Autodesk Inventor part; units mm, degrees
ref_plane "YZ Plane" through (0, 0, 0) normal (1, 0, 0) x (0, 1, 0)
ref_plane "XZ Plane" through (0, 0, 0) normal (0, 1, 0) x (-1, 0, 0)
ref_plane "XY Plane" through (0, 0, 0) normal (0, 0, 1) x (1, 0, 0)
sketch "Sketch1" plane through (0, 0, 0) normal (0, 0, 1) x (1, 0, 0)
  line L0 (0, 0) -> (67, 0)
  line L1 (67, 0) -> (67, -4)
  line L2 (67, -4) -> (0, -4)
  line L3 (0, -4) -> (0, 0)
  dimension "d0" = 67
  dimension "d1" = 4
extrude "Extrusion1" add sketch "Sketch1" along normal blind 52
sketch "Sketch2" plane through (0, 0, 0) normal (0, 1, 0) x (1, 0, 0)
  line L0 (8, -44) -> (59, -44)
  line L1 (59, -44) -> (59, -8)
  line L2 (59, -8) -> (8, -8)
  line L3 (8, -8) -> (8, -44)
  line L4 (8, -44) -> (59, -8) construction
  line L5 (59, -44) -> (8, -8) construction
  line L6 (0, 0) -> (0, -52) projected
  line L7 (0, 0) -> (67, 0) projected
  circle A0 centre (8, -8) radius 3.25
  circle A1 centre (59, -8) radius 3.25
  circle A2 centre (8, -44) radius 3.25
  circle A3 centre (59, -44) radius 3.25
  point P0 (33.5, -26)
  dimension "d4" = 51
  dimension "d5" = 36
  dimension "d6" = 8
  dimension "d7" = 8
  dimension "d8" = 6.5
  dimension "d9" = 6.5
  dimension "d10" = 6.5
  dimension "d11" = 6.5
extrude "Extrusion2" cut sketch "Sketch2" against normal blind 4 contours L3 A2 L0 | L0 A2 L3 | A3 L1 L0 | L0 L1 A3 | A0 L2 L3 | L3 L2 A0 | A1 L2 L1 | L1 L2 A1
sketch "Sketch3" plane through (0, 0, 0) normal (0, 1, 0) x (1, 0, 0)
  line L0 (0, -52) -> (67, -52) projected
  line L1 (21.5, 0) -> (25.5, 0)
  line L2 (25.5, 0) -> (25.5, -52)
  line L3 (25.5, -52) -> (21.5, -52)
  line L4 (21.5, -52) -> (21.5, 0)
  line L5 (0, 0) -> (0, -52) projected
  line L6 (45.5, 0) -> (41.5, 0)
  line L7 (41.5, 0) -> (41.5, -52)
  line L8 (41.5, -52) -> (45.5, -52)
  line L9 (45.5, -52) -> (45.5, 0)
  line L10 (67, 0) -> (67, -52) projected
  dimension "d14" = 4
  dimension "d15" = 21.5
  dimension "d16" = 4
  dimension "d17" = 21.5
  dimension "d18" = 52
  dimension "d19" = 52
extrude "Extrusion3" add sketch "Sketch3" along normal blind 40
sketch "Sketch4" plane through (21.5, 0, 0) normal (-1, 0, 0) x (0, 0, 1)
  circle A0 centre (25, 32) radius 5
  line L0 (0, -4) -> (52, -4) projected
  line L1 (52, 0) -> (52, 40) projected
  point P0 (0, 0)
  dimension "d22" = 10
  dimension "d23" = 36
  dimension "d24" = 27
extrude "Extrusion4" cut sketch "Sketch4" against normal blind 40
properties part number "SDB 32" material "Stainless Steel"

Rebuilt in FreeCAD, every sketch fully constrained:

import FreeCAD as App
import Part
import Sketcher

V = App.Vector

doc = App.newDocument("Part")
body = doc.addObject("PartDesign::Body", "Body")

# Sketch on XY plane
sketch1 = body.newObject("Sketcher::SketchObject", "Sketch")
sketch1.AttachmentSupport = (doc.getObject("XY_Plane"), [""])
sketch1.MapMode = "FlatFace"
sketch1.addGeometry(Part.LineSegment(V(67, 0, 0), V(0, 0, 0)), False)
sketch1.addGeometry(Part.LineSegment(V(0, 0, 0), V(0, -4, 0)), False)
sketch1.addGeometry(Part.LineSegment(V(0, -4, 0), V(67, -4, 0)), False)
sketch1.addGeometry(Part.LineSegment(V(67, -4, 0), V(67, 0, 0)), False)
sketch1.addConstraint(Sketcher.Constraint("Coincident", 0, 2, 1, 1))
sketch1.addConstraint(Sketcher.Constraint("Coincident", 1, 2, 2, 1))
sketch1.addConstraint(Sketcher.Constraint("Coincident", 2, 2, 3, 1))
sketch1.addConstraint(Sketcher.Constraint("Coincident", 3, 2, 0, 1))
sketch1.addConstraint(Sketcher.Constraint("Horizontal", 0))
sketch1.addConstraint(Sketcher.Constraint("Vertical", 1))
sketch1.addConstraint(Sketcher.Constraint("Horizontal", 2))
sketch1.addConstraint(Sketcher.Constraint("Vertical", 3))
sketch1.addConstraint(Sketcher.Constraint("Coincident", 0, 2, -1, 1))
sketch1.addConstraint(Sketcher.Constraint("DistanceX", 0, 2, 0, 1, 67.0))
sketch1.addConstraint(Sketcher.Constraint("DistanceY", 1, 2, 1, 1, 4.0))
pad1 = body.newObject("PartDesign::Pad", "Pad")
pad1.Profile = sketch1
pad1.Length = 52

# Sketch on XZ plane
sketch2 = body.newObject("Sketcher::SketchObject", "Sketch001")
sketch2.AttachmentSupport = (doc.getObject("XZ_Plane"), [""])
sketch2.MapMode = "FlatFace"
sketch2.addGeometry(Part.Circle(V(8, 44, 0), V(0, 0, 1), 3.2), False)
sketch2.addGeometry(Part.Circle(V(59, 44, 0), V(0, 0, 1), 3.2), False)
sketch2.addGeometry(Part.Circle(V(8, 8, 0), V(0, 0, 1), 3.2), False)
sketch2.addGeometry(Part.Circle(V(59, 8, 0), V(0, 0, 1), 3.2), False)
sketch2.addConstraint(Sketcher.Constraint("Equal", 0, 1))
sketch2.addConstraint(Sketcher.Constraint("Equal", 1, 2))
sketch2.addConstraint(Sketcher.Constraint("Equal", 2, 3))
sketch2.addConstraint(Sketcher.Constraint("Horizontal", 0, 3, 1, 3))
sketch2.addConstraint(Sketcher.Constraint("Horizontal", 2, 3, 3, 3))
sketch2.addConstraint(Sketcher.Constraint("Vertical", 0, 3, 2, 3))
sketch2.addConstraint(Sketcher.Constraint("Vertical", 1, 3, 3, 3))
sketch2.addConstraint(Sketcher.Constraint("Diameter", 0, 6.5))
sketch2.addConstraint(Sketcher.Constraint("DistanceX", -1, 1, 0, 3, 8.0))
sketch2.addConstraint(Sketcher.Constraint("DistanceY", -1, 1, 2, 3, 8.0))
sketch2.addConstraint(Sketcher.Constraint("DistanceX", 0, 3, 1, 3, 51.0))
sketch2.addConstraint(Sketcher.Constraint("DistanceY", 2, 3, 0, 3, 36.0))
pocket1 = body.newObject("PartDesign::Pocket", "Pocket")
pocket1.Profile = sketch2
pocket1.Length = 4
pocket1.Reversed = True

# Sketch on XZ plane
sketch3 = body.newObject("Sketcher::SketchObject", "Sketch002")
sketch3.AttachmentSupport = (doc.getObject("XZ_Plane"), [""])
sketch3.MapMode = "FlatFace"
sketch3.addGeometry(Part.LineSegment(V(21.5, 0, 0), V(21.5, 52, 0)), False)
sketch3.addGeometry(Part.LineSegment(V(21.5, 52, 0), V(25.5, 52, 0)), False)
sketch3.addGeometry(Part.LineSegment(V(25.5, 52, 0), V(25.5, 0, 0)), False)
sketch3.addGeometry(Part.LineSegment(V(25.5, 0, 0), V(21.5, 0, 0)), False)
sketch3.addGeometry(Part.LineSegment(V(41.5, 0, 0), V(41.5, 52, 0)), False)
sketch3.addGeometry(Part.LineSegment(V(41.5, 52, 0), V(45.5, 52, 0)), False)
sketch3.addGeometry(Part.LineSegment(V(45.5, 52, 0), V(45.5, 0, 0)), False)
sketch3.addGeometry(Part.LineSegment(V(45.5, 0, 0), V(41.5, 0, 0)), False)
sketch3.addConstraint(Sketcher.Constraint("Coincident", 0, 2, 1, 1))
sketch3.addConstraint(Sketcher.Constraint("Coincident", 1, 2, 2, 1))
sketch3.addConstraint(Sketcher.Constraint("Coincident", 2, 2, 3, 1))
sketch3.addConstraint(Sketcher.Constraint("Coincident", 3, 2, 0, 1))
sketch3.addConstraint(Sketcher.Constraint("Coincident", 4, 2, 5, 1))
sketch3.addConstraint(Sketcher.Constraint("Coincident", 5, 2, 6, 1))
sketch3.addConstraint(Sketcher.Constraint("Coincident", 6, 2, 7, 1))
sketch3.addConstraint(Sketcher.Constraint("Coincident", 7, 2, 4, 1))
sketch3.addConstraint(Sketcher.Constraint("Vertical", 0))
sketch3.addConstraint(Sketcher.Constraint("Horizontal", 1))
sketch3.addConstraint(Sketcher.Constraint("Vertical", 2))
sketch3.addConstraint(Sketcher.Constraint("Horizontal", 3))
sketch3.addConstraint(Sketcher.Constraint("Vertical", 4))
sketch3.addConstraint(Sketcher.Constraint("Horizontal", 5))
sketch3.addConstraint(Sketcher.Constraint("Vertical", 6))
sketch3.addConstraint(Sketcher.Constraint("Horizontal", 7))
sketch3.addConstraint(Sketcher.Constraint("PointOnObject", 2, 2, -1))
sketch3.addConstraint(Sketcher.Constraint("PointOnObject", 6, 2, -1))
sketch3.addConstraint(Sketcher.Constraint("Horizontal", 1, 2, 4, 2))
sketch3.addConstraint(Sketcher.Constraint("Equal", 3, 5))
sketch3.addConstraint(Sketcher.Constraint("DistanceX", 1, 1, 1, 2, 4.0))
sketch3.addConstraint(Sketcher.Constraint("DistanceY", 0, 1, 0, 2, 52.0))
sketch3.addConstraint(Sketcher.Constraint("DistanceX", -1, 1, 0, 2, 21.5))
sketch3.addConstraint(Sketcher.Constraint("DistanceX", 1, 2, 4, 2, 16.0))
pad2 = body.newObject("PartDesign::Pad", "Pad001")
pad2.Profile = sketch3
pad2.Length = 40
pad2.Reversed = True

# Sketch on YZ plane
sketch4 = body.newObject("Sketcher::SketchObject", "Sketch003")
sketch4.AttachmentSupport = (doc.getObject("YZ_Plane"), [""])
sketch4.MapMode = "FlatFace"
sketch4.AttachmentOffset = App.Placement(V(0, 0, 21.5), App.Rotation())
sketch4.addGeometry(Part.Circle(V(32, 25, 0), V(0, 0, 1), 5), False)
sketch4.addConstraint(Sketcher.Constraint("Diameter", 0, 10.0))
sketch4.addConstraint(Sketcher.Constraint("DistanceX", -1, 1, 0, 3, 32.0))
sketch4.addConstraint(Sketcher.Constraint("DistanceY", -1, 1, 0, 3, 25.0))
pocket2 = body.newObject("PartDesign::Pocket", "Pocket001")
pocket2.Profile = sketch4
pocket2.Length = 40
pocket2.Reversed = True

doc.recompute()
